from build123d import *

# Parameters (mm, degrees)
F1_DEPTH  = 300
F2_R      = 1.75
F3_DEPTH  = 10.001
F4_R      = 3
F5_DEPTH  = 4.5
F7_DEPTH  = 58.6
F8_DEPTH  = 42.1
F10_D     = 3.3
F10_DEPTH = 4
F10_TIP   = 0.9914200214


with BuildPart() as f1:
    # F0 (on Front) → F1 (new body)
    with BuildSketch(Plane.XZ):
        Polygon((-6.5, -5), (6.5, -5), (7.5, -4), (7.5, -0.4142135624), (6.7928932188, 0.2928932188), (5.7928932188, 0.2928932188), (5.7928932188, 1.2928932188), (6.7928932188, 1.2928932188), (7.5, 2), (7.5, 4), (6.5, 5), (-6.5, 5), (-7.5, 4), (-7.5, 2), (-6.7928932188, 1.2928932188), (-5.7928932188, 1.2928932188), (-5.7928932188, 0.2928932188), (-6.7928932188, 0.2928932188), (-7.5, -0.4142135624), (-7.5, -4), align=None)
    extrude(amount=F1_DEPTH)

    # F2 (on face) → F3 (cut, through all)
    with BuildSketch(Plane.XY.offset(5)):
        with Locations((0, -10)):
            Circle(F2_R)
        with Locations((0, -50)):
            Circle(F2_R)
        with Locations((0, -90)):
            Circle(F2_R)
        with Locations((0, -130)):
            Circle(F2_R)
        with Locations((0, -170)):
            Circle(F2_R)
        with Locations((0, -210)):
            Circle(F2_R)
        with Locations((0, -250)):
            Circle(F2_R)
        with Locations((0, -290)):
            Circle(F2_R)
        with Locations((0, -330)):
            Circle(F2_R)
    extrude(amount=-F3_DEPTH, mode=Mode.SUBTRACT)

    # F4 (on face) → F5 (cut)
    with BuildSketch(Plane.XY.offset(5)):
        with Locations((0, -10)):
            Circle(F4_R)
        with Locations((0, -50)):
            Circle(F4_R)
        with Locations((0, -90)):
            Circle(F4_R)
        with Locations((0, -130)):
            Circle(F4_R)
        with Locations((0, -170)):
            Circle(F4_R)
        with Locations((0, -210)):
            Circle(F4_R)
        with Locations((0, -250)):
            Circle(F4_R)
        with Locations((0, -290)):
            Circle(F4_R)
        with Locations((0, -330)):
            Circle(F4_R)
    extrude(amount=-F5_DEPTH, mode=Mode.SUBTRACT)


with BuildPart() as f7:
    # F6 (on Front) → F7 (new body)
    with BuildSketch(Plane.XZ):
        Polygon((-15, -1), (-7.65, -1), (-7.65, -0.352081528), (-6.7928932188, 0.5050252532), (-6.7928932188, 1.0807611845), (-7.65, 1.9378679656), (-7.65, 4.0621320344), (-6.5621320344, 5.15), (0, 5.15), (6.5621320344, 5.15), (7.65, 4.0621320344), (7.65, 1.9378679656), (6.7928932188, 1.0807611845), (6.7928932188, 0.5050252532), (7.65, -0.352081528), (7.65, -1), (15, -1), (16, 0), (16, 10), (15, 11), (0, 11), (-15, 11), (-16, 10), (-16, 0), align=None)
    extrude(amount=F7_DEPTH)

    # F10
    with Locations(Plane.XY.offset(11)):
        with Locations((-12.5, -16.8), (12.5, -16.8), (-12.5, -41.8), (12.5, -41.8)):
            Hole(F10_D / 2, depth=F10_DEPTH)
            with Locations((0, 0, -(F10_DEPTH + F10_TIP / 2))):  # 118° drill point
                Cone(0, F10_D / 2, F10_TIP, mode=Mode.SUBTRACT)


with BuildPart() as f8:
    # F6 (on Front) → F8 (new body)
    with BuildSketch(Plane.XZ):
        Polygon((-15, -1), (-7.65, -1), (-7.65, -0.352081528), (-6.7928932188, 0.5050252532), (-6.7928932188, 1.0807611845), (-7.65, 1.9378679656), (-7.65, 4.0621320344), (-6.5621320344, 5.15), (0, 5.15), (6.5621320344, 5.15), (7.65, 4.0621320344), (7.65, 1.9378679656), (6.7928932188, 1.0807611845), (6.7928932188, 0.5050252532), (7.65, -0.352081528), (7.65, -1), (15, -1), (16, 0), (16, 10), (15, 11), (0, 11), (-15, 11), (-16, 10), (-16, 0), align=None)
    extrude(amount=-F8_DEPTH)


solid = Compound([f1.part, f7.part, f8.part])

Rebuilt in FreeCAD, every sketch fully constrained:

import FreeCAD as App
import Part
import Sketcher

V = App.Vector


def add_polygon(sketch, points):
    """Adds a closed chain of lines whose ends are joined by coincident constraints."""
    first, n = sketch.GeometryCount, len(points)
    for a, b in zip(points, points[1:] + points[:1]):
        sketch.addGeometry(Part.LineSegment(App.Vector(*a, 0), App.Vector(*b, 0)), False)
    for i in range(n):
        sketch.addConstraint(Sketcher.Constraint("Coincident", first + i, 2, first + (i + 1) % n, 1))

doc = App.newDocument("Part")
body = doc.addObject("PartDesign::Body", "Body")

# Sketch on XZ plane
sketch1 = doc.addObject("Sketcher::SketchObject", "Sketch")
body.addObject(sketch1)
sketch1.AttachmentSupport = (doc.XZ_Plane, [""])
sketch1.MapMode = "FlatFace"
add_polygon(sketch1, [(-6.5, -5), (6.5, -5), (7.5, -4), (7.5, -0.4), (6.8, 0.3), (5.8, 0.3), (5.8, 1.3), (6.8, 1.3), (7.5, 2), (7.5, 4), (6.5, 5), (-6.5, 5), (-7.5, 4), (-7.5, 2), (-6.8, 1.3), (-5.8, 1.3), (-5.8, 0.3), (-6.8, 0.3), (-7.5, -0.4), (-7.5, -4)])  # lines 0-19
sketch1.addConstraint(Sketcher.Constraint("Horizontal", 0))
sketch1.addConstraint(Sketcher.Constraint("Vertical", 2))
sketch1.addConstraint(Sketcher.Constraint("Horizontal", 4))
sketch1.addConstraint(Sketcher.Constraint("Vertical", 5))
sketch1.addConstraint(Sketcher.Constraint("Horizontal", 6))
sketch1.addConstraint(Sketcher.Constraint("Vertical", 8))
sketch1.addConstraint(Sketcher.Constraint("Horizontal", 10))
sketch1.addConstraint(Sketcher.Constraint("Vertical", 12))
sketch1.addConstraint(Sketcher.Constraint("Horizontal", 14))
sketch1.addConstraint(Sketcher.Constraint("Vertical", 15))
sketch1.addConstraint(Sketcher.Constraint("Horizontal", 16))
sketch1.addConstraint(Sketcher.Constraint("Vertical", 18))
sketch1.addConstraint(Sketcher.Constraint("Symmetric", 0, 2, 10, 2, -1, 1))
sketch1.addConstraint(Sketcher.Constraint("Symmetric", 1, 2, 11, 2, -1, 1))
sketch1.addConstraint(Sketcher.Constraint("Symmetric", 8, 2, 18, 2, -1, 1))
sketch1.addConstraint(Sketcher.Constraint("Symmetric", 8, 2, 11, 2, -2))
sketch1.addConstraint(Sketcher.Constraint("Symmetric", 6, 2, 13, 2, -2))
sketch1.addConstraint(Sketcher.Constraint("Symmetric", 4, 2, 15, 2, -2))
sketch1.addConstraint(Sketcher.Constraint("Perpendicular", 1, 3))
sketch1.addConstraint(Sketcher.Constraint("Perpendicular", 3, 7))
sketch1.addConstraint(Sketcher.Constraint("Perpendicular", 7, 9))
sketch1.addConstraint(Sketcher.Constraint("Perpendicular", 11, 13))
sketch1.addConstraint(Sketcher.Constraint("Perpendicular", 13, 17))
sketch1.addConstraint(Sketcher.Constraint("Perpendicular", 17, 19))
sketch1.addConstraint(Sketcher.Constraint("Horizontal", 7, 2, 12, 2))
sketch1.addConstraint(Sketcher.Constraint("Horizontal", 2, 2, 17, 2))
sketch1.addConstraint(Sketcher.Constraint("Vertical", 3, 2, 6, 2))
sketch1.addConstraint(Sketcher.Constraint("Equal", 16, 5))
sketch1.addConstraint(Sketcher.Constraint("DistanceX", 0, 1, 0, 2, 13.0))
sketch1.addConstraint(Sketcher.Constraint("DistanceX", 4, 2, 4, 1, 1.0))
sketch1.addConstraint(Sketcher.Constraint("DistanceY", 8, 1, 8, 2, 2.0))
sketch1.addConstraint(Sketcher.Constraint("Distance", 3, 1.0))
sketch1.addConstraint(Sketcher.Constraint("DistanceY", 0, 2, -1, 1, 5.0))
sketch1.addConstraint(Sketcher.Constraint("DistanceY", 1, 2, -1, 1, 4.0))
pad1 = doc.addObject("PartDesign::Pad", "Pad")
body.addObject(pad1)
pad1.Profile = sketch1
pad1.Length = 300

# Sketch on XY plane
sketch2 = doc.addObject("Sketcher::SketchObject", "Sketch001")
body.addObject(sketch2)
sketch2.AttachmentSupport = (doc.XY_Plane, [""])
sketch2.MapMode = "FlatFace"
sketch2.AttachmentOffset = App.Placement(V(0, 0, 5), App.Rotation())
sketch2.addGeometry(Part.Circle(V(0, -10, 0), V(0, 0, 1), 1.8), False)
sketch2.addGeometry(Part.Circle(V(0, -50, 0), V(0, 0, 1), 1.8), False)
sketch2.addGeometry(Part.Circle(V(0, -90, 0), V(0, 0, 1), 1.8), False)
sketch2.addGeometry(Part.Circle(V(0, -130, 0), V(0, 0, 1), 1.8), False)
sketch2.addGeometry(Part.Circle(V(0, -170, 0), V(0, 0, 1), 1.8), False)
sketch2.addGeometry(Part.Circle(V(0, -210, 0), V(0, 0, 1), 1.8), False)
sketch2.addGeometry(Part.Circle(V(0, -250, 0), V(0, 0, 1), 1.8), False)
sketch2.addGeometry(Part.Circle(V(0, -290, 0), V(0, 0, 1), 1.8), False)
sketch2.addGeometry(Part.Circle(V(0, -330, 0), V(0, 0, 1), 1.8), False)
sketch2.addConstraint(Sketcher.Constraint("Equal", 0, 1))
sketch2.addConstraint(Sketcher.Constraint("Equal", 1, 2))
sketch2.addConstraint(Sketcher.Constraint("Equal", 2, 3))
sketch2.addConstraint(Sketcher.Constraint("Equal", 3, 4))
sketch2.addConstraint(Sketcher.Constraint("Equal", 4, 5))
sketch2.addConstraint(Sketcher.Constraint("Equal", 5, 6))
sketch2.addConstraint(Sketcher.Constraint("Equal", 6, 7))
sketch2.addConstraint(Sketcher.Constraint("Equal", 7, 8))
sketch2.addConstraint(Sketcher.Constraint("PointOnObject", 0, 3, -2))
sketch2.addConstraint(Sketcher.Constraint("PointOnObject", 1, 3, -2))
sketch2.addConstraint(Sketcher.Constraint("PointOnObject", 2, 3, -2))
sketch2.addConstraint(Sketcher.Constraint("PointOnObject", 3, 3, -2))
sketch2.addConstraint(Sketcher.Constraint("PointOnObject", 4, 3, -2))
sketch2.addConstraint(Sketcher.Constraint("PointOnObject", 5, 3, -2))
sketch2.addConstraint(Sketcher.Constraint("PointOnObject", 6, 3, -2))
sketch2.addConstraint(Sketcher.Constraint("PointOnObject", 7, 3, -2))
sketch2.addConstraint(Sketcher.Constraint("PointOnObject", 8, 3, -2))
sketch2.addConstraint(Sketcher.Constraint("Diameter", 0, 3.5))
sketch2.addConstraint(Sketcher.Constraint("DistanceY", 0, 3, -1, 1, 10.0))
sketch2.addConstraint(Sketcher.Constraint("DistanceY", 1, 3, -1, 1, 50.0))
sketch2.addConstraint(Sketcher.Constraint("DistanceY", 2, 3, -1, 1, 90.0))
sketch2.addConstraint(Sketcher.Constraint("DistanceY", 3, 3, -1, 1, 130.0))
sketch2.addConstraint(Sketcher.Constraint("DistanceY", 4, 3, -1, 1, 170.0))
sketch2.addConstraint(Sketcher.Constraint("DistanceY", 5, 3, -1, 1, 210.0))
sketch2.addConstraint(Sketcher.Constraint("DistanceY", 6, 3, -1, 1, 250.0))
sketch2.addConstraint(Sketcher.Constraint("DistanceY", 7, 3, -1, 1, 290.0))
sketch2.addConstraint(Sketcher.Constraint("DistanceY", 8, 3, -1, 1, 330.0))
pocket1 = doc.addObject("PartDesign::Pocket", "Pocket")
body.addObject(pocket1)
pocket1.Profile = sketch2
pocket1.Type = "ThroughAll"

# Sketch on XY plane
sketch3 = doc.addObject("Sketcher::SketchObject", "Sketch002")
body.addObject(sketch3)
sketch3.AttachmentSupport = (doc.XY_Plane, [""])
sketch3.MapMode = "FlatFace"
sketch3.AttachmentOffset = App.Placement(V(0, 0, 5), App.Rotation())
sketch3.addGeometry(Part.Circle(V(0, -10, 0), V(0, 0, 1), 3), False)
sketch3.addGeometry(Part.Circle(V(0, -50, 0), V(0, 0, 1), 3), False)
sketch3.addGeometry(Part.Circle(V(0, -90, 0), V(0, 0, 1), 3), False)
sketch3.addGeometry(Part.Circle(V(0, -130, 0), V(0, 0, 1), 3), False)
sketch3.addGeometry(Part.Circle(V(0, -170, 0), V(0, 0, 1), 3), False)
sketch3.addGeometry(Part.Circle(V(0, -210, 0), V(0, 0, 1), 3), False)
sketch3.addGeometry(Part.Circle(V(0, -250, 0), V(0, 0, 1), 3), False)
sketch3.addGeometry(Part.Circle(V(0, -290, 0), V(0, 0, 1), 3), False)
sketch3.addGeometry(Part.Circle(V(0, -330, 0), V(0, 0, 1), 3), False)
sketch3.addConstraint(Sketcher.Constraint("Equal", 0, 1))
sketch3.addConstraint(Sketcher.Constraint("Equal", 1, 2))
sketch3.addConstraint(Sketcher.Constraint("Equal", 2, 3))
sketch3.addConstraint(Sketcher.Constraint("Equal", 3, 4))
sketch3.addConstraint(Sketcher.Constraint("Equal", 4, 5))
sketch3.addConstraint(Sketcher.Constraint("Equal", 5, 6))
sketch3.addConstraint(Sketcher.Constraint("Equal", 6, 7))
sketch3.addConstraint(Sketcher.Constraint("Equal", 7, 8))
sketch3.addConstraint(Sketcher.Constraint("PointOnObject", 0, 3, -2))
sketch3.addConstraint(Sketcher.Constraint("PointOnObject", 1, 3, -2))
sketch3.addConstraint(Sketcher.Constraint("PointOnObject", 2, 3, -2))
sketch3.addConstraint(Sketcher.Constraint("PointOnObject", 3, 3, -2))
sketch3.addConstraint(Sketcher.Constraint("PointOnObject", 4, 3, -2))
sketch3.addConstraint(Sketcher.Constraint("PointOnObject", 5, 3, -2))
sketch3.addConstraint(Sketcher.Constraint("PointOnObject", 6, 3, -2))
sketch3.addConstraint(Sketcher.Constraint("PointOnObject", 7, 3, -2))
sketch3.addConstraint(Sketcher.Constraint("PointOnObject", 8, 3, -2))
sketch3.addConstraint(Sketcher.Constraint("Diameter", 0, 6.0))
sketch3.addConstraint(Sketcher.Constraint("DistanceY", 0, 3, -1, 1, 10.0))
sketch3.addConstraint(Sketcher.Constraint("DistanceY", 1, 3, -1, 1, 50.0))
sketch3.addConstraint(Sketcher.Constraint("DistanceY", 2, 3, -1, 1, 90.0))
sketch3.addConstraint(Sketcher.Constraint("DistanceY", 3, 3, -1, 1, 130.0))
sketch3.addConstraint(Sketcher.Constraint("DistanceY", 4, 3, -1, 1, 170.0))
sketch3.addConstraint(Sketcher.Constraint("DistanceY", 5, 3, -1, 1, 210.0))
sketch3.addConstraint(Sketcher.Constraint("DistanceY", 6, 3, -1, 1, 250.0))
sketch3.addConstraint(Sketcher.Constraint("DistanceY", 7, 3, -1, 1, 290.0))
sketch3.addConstraint(Sketcher.Constraint("DistanceY", 8, 3, -1, 1, 330.0))
pocket2 = doc.addObject("PartDesign::Pocket", "Pocket001")
body.addObject(pocket2)
pocket2.Profile = sketch3
pocket2.Length = 4.5
body2 = doc.addObject("PartDesign::Body", "Body001")

# Sketch on XZ plane
sketch4 = doc.addObject("Sketcher::SketchObject", "Sketch003")
body2.addObject(sketch4)
sketch4.AttachmentSupport = (doc.getObject("XZ_Plane001"), [""])
sketch4.MapMode = "FlatFace"
add_polygon(sketch4, [(-15, -1), (-7.7, -1), (-7.7, -0.4), (-6.8, 0.5), (-6.8, 1.1), (-7.7, 1.9), (-7.7, 4.1), (-6.6, 5.2), (6.6, 5.2), (7.7, 4.1), (7.7, 1.9), (6.8, 1.1), (6.8, 0.5), (7.7, -0.4), (7.7, -1), (15, -1), (16, 0), (16, 10), (15, 11), (-15, 11), (-16, 10), (-16, 0)])  # lines 0-21
sketch4.addConstraint(Sketcher.Constraint("Horizontal", 0))
sketch4.addConstraint(Sketcher.Constraint("Vertical", 1))
sketch4.addConstraint(Sketcher.Constraint("Vertical", 3))
sketch4.addConstraint(Sketcher.Constraint("Vertical", 5))
sketch4.addConstraint(Sketcher.Constraint("Horizontal", 7))
sketch4.addConstraint(Sketcher.Constraint("Vertical", 9))
sketch4.addConstraint(Sketcher.Constraint("Vertical", 11))
sketch4.addConstraint(Sketcher.Constraint("Vertical", 13))
sketch4.addConstraint(Sketcher.Constraint("Horizontal", 14))
sketch4.addConstraint(Sketcher.Constraint("Vertical", 16))
sketch4.addConstraint(Sketcher.Constraint("Horizontal", 18))
sketch4.addConstraint(Sketcher.Constraint("Vertical", 20))
sketch4.addConstraint(Sketcher.Constraint("Symmetric", 15, 2, 20, 2, -1, 1))
sketch4.addConstraint(Sketcher.Constraint("Symmetric", 5, 2, 8, 2, -2))
sketch4.addConstraint(Sketcher.Constraint("Symmetric", 3, 2, 10, 2, -2))
sketch4.addConstraint(Sketcher.Constraint("Symmetric", 1, 2, 12, 2, -2))
sketch4.addConstraint(Sketcher.Constraint("Symmetric", 14, 2, 21, 2, -2))
sketch4.addConstraint(Sketcher.Constraint("PointOnObject", 15, 2, -1))
sketch4.addConstraint(Sketcher.Constraint("Perpendicular", 2, 4))
sketch4.addConstraint(Sketcher.Constraint("Perpendicular", 4, 6))
sketch4.addConstraint(Sketcher.Constraint("Perpendicular", 6, 8))
sketch4.addConstraint(Sketcher.Constraint("Perpendicular", 8, 10))
sketch4.addConstraint(Sketcher.Constraint("Perpendicular", 10, 12))
sketch4.addConstraint(Sketcher.Constraint("Perpendicular", 12, 15))
sketch4.addConstraint(Sketcher.Constraint("Perpendicular", 15, 17))
sketch4.addConstraint(Sketcher.Constraint("Perpendicular", 17, 19))
sketch4.addConstraint(Sketcher.Constraint("Perpendicular", 19, 21))
sketch4.addConstraint(Sketcher.Constraint("Horizontal", 16, 2, 19, 2))
sketch4.addConstraint(Sketcher.Constraint("Vertical", 1, 2, 4, 2))
sketch4.addConstraint(Sketcher.Constraint("Vertical", 14, 2, 17, 2))
sketch4.addConstraint(Sketcher.Constraint("DistanceX", 18, 2, 18, 1, 30.0))
sketch4.addConstraint(Sketcher.Constraint("DistanceY", 16, 1, 16, 2, 10.0))
sketch4.addConstraint(Sketcher.Constraint("DistanceY", 0, 2, -1, 1, 1.0))
sketch4.addConstraint(Sketcher.Constraint("DistanceX", 0, 1, 0, 2, 7.35))
sketch4.addConstraint(Sketcher.Constraint("DistanceY", -1, 1, 6, 2, 5.15))
sketch4.addConstraint(Sketcher.Constraint("DistanceY", 1, 1, 1, 2, 0.647918))
sketch4.addConstraint(Sketcher.Constraint("DistanceX", 7, 1, 7, 2, 13.124264))
sketch4.addConstraint(Sketcher.Constraint("DistanceY", 3, 1, 3, 2, 0.575736))
sketch4.addConstraint(Sketcher.Constraint("DistanceY", 5, 1, 5, 2, 2.124264))
pad2 = doc.addObject("PartDesign::Pad", "Pad001")
body2.addObject(pad2)
pad2.Profile = sketch4
pad2.Length = 58.6

# Sketch on XY plane
sketch5 = doc.addObject("Sketcher::SketchObject", "Sketch004")
body2.addObject(sketch5)
sketch5.AttachmentSupport = (doc.getObject("XY_Plane001"), [""])
sketch5.MapMode = "FlatFace"
sketch5.AttachmentOffset = App.Placement(V(0, 0, 11), App.Rotation())
sketch5.addGeometry(Part.Circle(V(-12.5, -16.8, 0), V(0, 0, 1), 1.6), False)
sketch5.addGeometry(Part.Circle(V(12.5, -16.8, 0), V(0, 0, 1), 1.6), False)
sketch5.addGeometry(Part.Circle(V(-12.5, -41.8, 0), V(0, 0, 1), 1.6), False)
sketch5.addGeometry(Part.Circle(V(12.5, -41.8, 0), V(0, 0, 1), 1.6), False)
sketch5.addConstraint(Sketcher.Constraint("Equal", 0, 1))
sketch5.addConstraint(Sketcher.Constraint("Equal", 1, 2))
sketch5.addConstraint(Sketcher.Constraint("Equal", 2, 3))
sketch5.addConstraint(Sketcher.Constraint("Symmetric", 0, 3, 1, 3, -2))
sketch5.addConstraint(Sketcher.Constraint("Symmetric", 2, 3, 3, 3, -2))
sketch5.addConstraint(Sketcher.Constraint("Vertical", 0, 3, 2, 3))
sketch5.addConstraint(Sketcher.Constraint("Diameter", 0, 3.3))
sketch5.addConstraint(Sketcher.Constraint("DistanceX", 0, 3, 1, 3, 25.0))
sketch5.addConstraint(Sketcher.Constraint("DistanceY", 2, 3, 0, 3, 25.0))
sketch5.addConstraint(Sketcher.Constraint("DistanceY", 0, 3, -1, 1, 16.8))
doc.recompute()
hole = doc.addObject("PartDesign::Hole", "Hole")
body2.addObject(hole)
hole.Profile = sketch5
hole.ThreadType = "None"
hole.Diameter = 3.3
hole.DepthType = "Dimension"
hole.Depth = 4
hole.DrillPoint = "Angled"
hole.DrillPointAngle = 118
body3 = doc.addObject("PartDesign::Body", "Body002")

# Sketch on XZ plane
sketch6 = doc.addObject("Sketcher::SketchObject", "Sketch005")
body3.addObject(sketch6)
sketch6.AttachmentSupport = (doc.getObject("XZ_Plane002"), [""])
sketch6.MapMode = "FlatFace"
add_polygon(sketch6, [(-15, -1), (-7.7, -1), (-7.7, -0.4), (-6.8, 0.5), (-6.8, 1.1), (-7.7, 1.9), (-7.7, 4.1), (-6.6, 5.2), (6.6, 5.2), (7.7, 4.1), (7.7, 1.9), (6.8, 1.1), (6.8, 0.5), (7.7, -0.4), (7.7, -1), (15, -1), (16, 0), (16, 10), (15, 11), (-15, 11), (-16, 10), (-16, 0)])  # lines 0-21
sketch6.addConstraint(Sketcher.Constraint("Horizontal", 0))
sketch6.addConstraint(Sketcher.Constraint("Vertical", 1))
sketch6.addConstraint(Sketcher.Constraint("Vertical", 3))
sketch6.addConstraint(Sketcher.Constraint("Vertical", 5))
sketch6.addConstraint(Sketcher.Constraint("Horizontal", 7))
sketch6.addConstraint(Sketcher.Constraint("Vertical", 9))
sketch6.addConstraint(Sketcher.Constraint("Vertical", 11))
sketch6.addConstraint(Sketcher.Constraint("Vertical", 13))
sketch6.addConstraint(Sketcher.Constraint("Horizontal", 14))
sketch6.addConstraint(Sketcher.Constraint("Vertical", 16))
sketch6.addConstraint(Sketcher.Constraint("Horizontal", 18))
sketch6.addConstraint(Sketcher.Constraint("Vertical", 20))
sketch6.addConstraint(Sketcher.Constraint("Symmetric", 15, 2, 20, 2, -1, 1))
sketch6.addConstraint(Sketcher.Constraint("Symmetric", 5, 2, 8, 2, -2))
sketch6.addConstraint(Sketcher.Constraint("Symmetric", 3, 2, 10, 2, -2))
sketch6.addConstraint(Sketcher.Constraint("Symmetric", 1, 2, 12, 2, -2))
sketch6.addConstraint(Sketcher.Constraint("Symmetric", 14, 2, 21, 2, -2))
sketch6.addConstraint(Sketcher.Constraint("PointOnObject", 15, 2, -1))
sketch6.addConstraint(Sketcher.Constraint("Perpendicular", 2, 4))
sketch6.addConstraint(Sketcher.Constraint("Perpendicular", 4, 6))
sketch6.addConstraint(Sketcher.Constraint("Perpendicular", 6, 8))
sketch6.addConstraint(Sketcher.Constraint("Perpendicular", 8, 10))
sketch6.addConstraint(Sketcher.Constraint("Perpendicular", 10, 12))
sketch6.addConstraint(Sketcher.Constraint("Perpendicular", 12, 15))
sketch6.addConstraint(Sketcher.Constraint("Perpendicular", 15, 17))
sketch6.addConstraint(Sketcher.Constraint("Perpendicular", 17, 19))
sketch6.addConstraint(Sketcher.Constraint("Perpendicular", 19, 21))
sketch6.addConstraint(Sketcher.Constraint("Horizontal", 16, 2, 19, 2))
sketch6.addConstraint(Sketcher.Constraint("Vertical", 1, 2, 4, 2))
sketch6.addConstraint(Sketcher.Constraint("Vertical", 14, 2, 17, 2))
sketch6.addConstraint(Sketcher.Constraint("DistanceX", 18, 2, 18, 1, 30.0))
sketch6.addConstraint(Sketcher.Constraint("DistanceY", 16, 1, 16, 2, 10.0))
sketch6.addConstraint(Sketcher.Constraint("DistanceY", 0, 2, -1, 1, 1.0))
sketch6.addConstraint(Sketcher.Constraint("DistanceX", 0, 1, 0, 2, 7.35))
sketch6.addConstraint(Sketcher.Constraint("DistanceY", -1, 1, 6, 2, 5.15))
sketch6.addConstraint(Sketcher.Constraint("DistanceY", 1, 1, 1, 2, 0.647918))
sketch6.addConstraint(Sketcher.Constraint("DistanceX", 7, 1, 7, 2, 13.124264))
sketch6.addConstraint(Sketcher.Constraint("DistanceY", 3, 1, 3, 2, 0.575736))
sketch6.addConstraint(Sketcher.Constraint("DistanceY", 5, 1, 5, 2, 2.124264))
pad3 = doc.addObject("PartDesign::Pad", "Pad002")
body3.addObject(pad3)
pad3.Profile = sketch6
pad3.Length = 42.1
pad3.Reversed = True

doc.recompute()
